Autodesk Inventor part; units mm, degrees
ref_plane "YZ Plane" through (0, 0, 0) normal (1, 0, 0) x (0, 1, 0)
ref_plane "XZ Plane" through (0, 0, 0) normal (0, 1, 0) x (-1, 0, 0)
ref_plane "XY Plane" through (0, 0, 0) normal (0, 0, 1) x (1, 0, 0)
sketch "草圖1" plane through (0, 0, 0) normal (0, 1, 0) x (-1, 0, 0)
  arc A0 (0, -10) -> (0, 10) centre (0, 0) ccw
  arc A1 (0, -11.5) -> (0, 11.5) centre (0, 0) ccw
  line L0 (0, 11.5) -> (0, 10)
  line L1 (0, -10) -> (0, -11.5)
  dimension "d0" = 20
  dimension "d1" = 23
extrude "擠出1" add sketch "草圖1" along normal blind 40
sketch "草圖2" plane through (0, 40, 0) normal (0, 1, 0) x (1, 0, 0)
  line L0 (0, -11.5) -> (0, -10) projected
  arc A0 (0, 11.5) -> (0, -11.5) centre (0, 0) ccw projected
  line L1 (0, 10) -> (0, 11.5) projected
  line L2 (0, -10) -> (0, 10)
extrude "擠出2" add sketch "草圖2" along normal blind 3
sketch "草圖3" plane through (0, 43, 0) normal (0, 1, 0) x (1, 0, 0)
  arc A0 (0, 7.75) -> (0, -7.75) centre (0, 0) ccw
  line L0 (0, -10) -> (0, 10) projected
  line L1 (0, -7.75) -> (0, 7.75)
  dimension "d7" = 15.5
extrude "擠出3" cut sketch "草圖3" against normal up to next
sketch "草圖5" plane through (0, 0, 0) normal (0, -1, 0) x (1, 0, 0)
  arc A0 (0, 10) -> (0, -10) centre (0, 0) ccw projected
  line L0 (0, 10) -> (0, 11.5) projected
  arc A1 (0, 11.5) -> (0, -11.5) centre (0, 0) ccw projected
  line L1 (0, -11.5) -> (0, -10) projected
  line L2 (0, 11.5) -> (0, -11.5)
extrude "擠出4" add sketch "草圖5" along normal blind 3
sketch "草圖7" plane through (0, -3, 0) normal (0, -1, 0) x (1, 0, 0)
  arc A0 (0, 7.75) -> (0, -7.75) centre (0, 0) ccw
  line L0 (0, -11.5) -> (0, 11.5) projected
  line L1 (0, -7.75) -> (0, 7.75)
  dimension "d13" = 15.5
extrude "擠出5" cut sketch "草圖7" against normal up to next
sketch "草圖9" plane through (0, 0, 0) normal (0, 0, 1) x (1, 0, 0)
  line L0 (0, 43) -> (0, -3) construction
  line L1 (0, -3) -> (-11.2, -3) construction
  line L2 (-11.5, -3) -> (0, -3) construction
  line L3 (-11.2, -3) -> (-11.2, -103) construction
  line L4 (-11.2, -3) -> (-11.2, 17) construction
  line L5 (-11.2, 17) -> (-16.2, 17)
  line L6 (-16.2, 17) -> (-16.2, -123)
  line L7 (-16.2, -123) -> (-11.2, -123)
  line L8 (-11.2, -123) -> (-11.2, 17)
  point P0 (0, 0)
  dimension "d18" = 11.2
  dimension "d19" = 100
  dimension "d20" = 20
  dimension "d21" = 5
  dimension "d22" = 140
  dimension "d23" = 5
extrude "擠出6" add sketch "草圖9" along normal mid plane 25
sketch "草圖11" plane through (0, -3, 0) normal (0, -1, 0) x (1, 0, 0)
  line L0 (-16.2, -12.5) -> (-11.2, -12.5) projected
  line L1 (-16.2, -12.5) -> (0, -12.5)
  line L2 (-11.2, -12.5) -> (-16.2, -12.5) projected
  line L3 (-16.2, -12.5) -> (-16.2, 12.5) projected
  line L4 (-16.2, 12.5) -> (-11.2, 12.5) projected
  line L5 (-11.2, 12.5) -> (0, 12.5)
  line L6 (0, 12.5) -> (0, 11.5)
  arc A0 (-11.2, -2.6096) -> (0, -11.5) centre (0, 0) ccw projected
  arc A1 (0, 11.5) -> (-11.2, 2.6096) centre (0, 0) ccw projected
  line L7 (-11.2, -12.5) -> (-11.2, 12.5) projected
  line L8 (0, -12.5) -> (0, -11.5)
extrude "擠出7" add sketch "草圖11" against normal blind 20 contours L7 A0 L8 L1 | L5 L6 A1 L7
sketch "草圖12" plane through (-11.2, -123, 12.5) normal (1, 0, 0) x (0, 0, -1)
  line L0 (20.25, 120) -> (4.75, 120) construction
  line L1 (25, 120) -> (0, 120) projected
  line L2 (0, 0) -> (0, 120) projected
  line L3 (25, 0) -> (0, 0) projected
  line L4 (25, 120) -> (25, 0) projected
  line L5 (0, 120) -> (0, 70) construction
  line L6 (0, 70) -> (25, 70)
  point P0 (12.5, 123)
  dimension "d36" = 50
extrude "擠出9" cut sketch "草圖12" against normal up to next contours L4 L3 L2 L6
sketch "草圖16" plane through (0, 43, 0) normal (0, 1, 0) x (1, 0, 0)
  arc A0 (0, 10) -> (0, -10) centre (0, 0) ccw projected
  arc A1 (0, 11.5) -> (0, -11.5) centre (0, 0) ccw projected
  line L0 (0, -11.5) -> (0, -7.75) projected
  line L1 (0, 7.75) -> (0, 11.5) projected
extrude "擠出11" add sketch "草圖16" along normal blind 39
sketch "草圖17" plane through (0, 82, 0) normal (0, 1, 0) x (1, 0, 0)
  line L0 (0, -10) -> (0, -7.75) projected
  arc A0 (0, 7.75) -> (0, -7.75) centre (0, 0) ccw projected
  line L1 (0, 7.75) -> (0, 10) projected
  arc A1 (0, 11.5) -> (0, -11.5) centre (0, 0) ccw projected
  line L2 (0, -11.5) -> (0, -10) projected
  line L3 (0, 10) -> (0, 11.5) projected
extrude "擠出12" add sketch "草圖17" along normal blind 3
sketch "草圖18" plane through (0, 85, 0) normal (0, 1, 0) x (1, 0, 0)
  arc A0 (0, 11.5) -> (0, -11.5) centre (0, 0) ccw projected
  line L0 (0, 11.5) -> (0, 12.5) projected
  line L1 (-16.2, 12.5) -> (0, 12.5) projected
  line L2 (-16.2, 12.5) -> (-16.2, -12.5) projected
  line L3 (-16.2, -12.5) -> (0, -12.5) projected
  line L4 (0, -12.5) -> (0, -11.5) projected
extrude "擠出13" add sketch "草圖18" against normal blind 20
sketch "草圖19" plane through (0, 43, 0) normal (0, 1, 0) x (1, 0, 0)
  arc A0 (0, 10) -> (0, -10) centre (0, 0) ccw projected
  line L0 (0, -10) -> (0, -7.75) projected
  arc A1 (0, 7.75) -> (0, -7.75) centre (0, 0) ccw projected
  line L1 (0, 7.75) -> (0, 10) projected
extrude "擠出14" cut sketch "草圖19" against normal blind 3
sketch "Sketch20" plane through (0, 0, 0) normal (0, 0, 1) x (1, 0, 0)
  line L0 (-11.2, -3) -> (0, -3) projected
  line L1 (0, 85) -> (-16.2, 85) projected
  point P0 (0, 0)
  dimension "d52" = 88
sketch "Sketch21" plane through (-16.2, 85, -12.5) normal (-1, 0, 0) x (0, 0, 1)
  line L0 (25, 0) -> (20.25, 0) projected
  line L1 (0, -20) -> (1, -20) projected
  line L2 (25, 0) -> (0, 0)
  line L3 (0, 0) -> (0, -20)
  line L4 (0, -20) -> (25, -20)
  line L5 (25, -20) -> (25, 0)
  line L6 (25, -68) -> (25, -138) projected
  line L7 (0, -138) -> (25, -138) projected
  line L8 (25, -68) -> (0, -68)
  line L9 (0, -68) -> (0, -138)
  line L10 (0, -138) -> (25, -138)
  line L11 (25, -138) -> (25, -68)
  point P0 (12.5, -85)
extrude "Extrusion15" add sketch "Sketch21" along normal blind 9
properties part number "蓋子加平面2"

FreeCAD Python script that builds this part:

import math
import FreeCAD as App
import Part
import Sketcher
from FreeCAD import Vector


def add_polygon(sketch, points):
    """Adds a closed chain of lines whose ends are joined by coincident constraints."""
    first, n = sketch.GeometryCount, len(points)
    for a, b in zip(points, points[1:] + points[:1]):
        sketch.addGeometry(Part.LineSegment(App.Vector(*a, 0), App.Vector(*b, 0)), False)
    for i in range(n):
        sketch.addConstraint(Sketcher.Constraint("Coincident", first + i, 2, first + (i + 1) % n, 1))

doc = App.newDocument("Part")
body = doc.addObject("PartDesign::Body", "Body")

# Sketch on XZ plane
sketch1 = doc.addObject("Sketcher::SketchObject", "Sketch")
body.addObject(sketch1)
sketch1.AttachmentSupport = (doc.XZ_Plane, [""])
sketch1.MapMode = "FlatFace"
sketch1.addGeometry(Part.ArcOfCircle(Part.Circle(Vector(0, 0, 0), Vector(0, 0, 1), 10), math.radians(90), math.radians(270)), False)
sketch1.addGeometry(Part.LineSegment(Vector(0, -10, 0), Vector(0, -11.5, 0)), False)
sketch1.addGeometry(Part.ArcOfCircle(Part.Circle(Vector(0, 0, 0), Vector(0, 0, 1), 11.5), math.radians(90), math.radians(270)), False)
sketch1.addGeometry(Part.LineSegment(Vector(0, 11.5, 0), Vector(0, 10, 0)), False)
sketch1.addConstraint(Sketcher.Constraint("Coincident", 0, 2, 1, 1))
sketch1.addConstraint(Sketcher.Constraint("Coincident", 1, 2, 2, 2))
sketch1.addConstraint(Sketcher.Constraint("Coincident", 2, 1, 3, 1))
sketch1.addConstraint(Sketcher.Constraint("Coincident", 3, 2, 0, 1))
sketch1.addConstraint(Sketcher.Constraint("Vertical", 1))
sketch1.addConstraint(Sketcher.Constraint("Vertical", 3))
sketch1.addConstraint(Sketcher.Constraint("Coincident", 0, 3, -1, 1))
sketch1.addConstraint(Sketcher.Constraint("Coincident", 2, 3, -1, 1))
sketch1.addConstraint(Sketcher.Constraint("PointOnObject", 0, 2, -2))
sketch1.addConstraint(Sketcher.Constraint("PointOnObject", 2, 1, -2))
sketch1.addConstraint(Sketcher.Constraint("Radius", 0, 10.0))
sketch1.addConstraint(Sketcher.Constraint("Radius", 2, 11.5))
pad1 = doc.addObject("PartDesign::Pad", "Pad")
body.addObject(pad1)
pad1.Profile = sketch1
pad1.Length = 40
pad1.Reversed = True

# Sketch on XZ plane
sketch2 = doc.addObject("Sketcher::SketchObject", "Sketch001")
body.addObject(sketch2)
sketch2.AttachmentSupport = (doc.XZ_Plane, [""])
sketch2.MapMode = "FlatFace"
sketch2.AttachmentOffset = App.Placement(Vector(0, 0, -40), App.Rotation())
sketch2.addGeometry(Part.ArcOfCircle(Part.Circle(Vector(0, 0, 0), Vector(0, 0, 1), 12), math.radians(90), math.radians(270)), False)
sketch2.addGeometry(Part.LineSegment(Vector(0, 12, 0), Vector(0, -12, 0)), False)
sketch2.addConstraint(Sketcher.Constraint("Coincident", 0, 1, 1, 1))
sketch2.addConstraint(Sketcher.Constraint("Coincident", 1, 2, 0, 2))
sketch2.addConstraint(Sketcher.Constraint("Vertical", 1))
sketch2.addConstraint(Sketcher.Constraint("Coincident", 0, 3, -1, 1))
sketch2.addConstraint(Sketcher.Constraint("PointOnObject", 0, 1, -2))
sketch2.addConstraint(Sketcher.Constraint("Radius", 0, 11.5))
pad2 = doc.addObject("PartDesign::Pad", "Pad001")
body.addObject(pad2)
pad2.Profile = sketch2
pad2.Length = 3
pad2.Reversed = True

# Sketch on XZ plane
sketch3 = doc.addObject("Sketcher::SketchObject", "Sketch002")
body.addObject(sketch3)
sketch3.AttachmentSupport = (doc.XZ_Plane, [""])
sketch3.MapMode = "FlatFace"
sketch3.AttachmentOffset = App.Placement(Vector(0, 0, -43), App.Rotation())
sketch3.addGeometry(Part.LineSegment(Vector(0, 8, 0), Vector(0, -8, 0)), False)
sketch3.addGeometry(Part.ArcOfCircle(Part.Circle(Vector(0, 0, 0), Vector(0, 0, 1), 8), math.radians(90), math.radians(270)), False)
sketch3.addConstraint(Sketcher.Constraint("Coincident", 0, 1, 1, 1))
sketch3.addConstraint(Sketcher.Constraint("Coincident", 1, 2, 0, 2))
sketch3.addConstraint(Sketcher.Constraint("Vertical", 0))
sketch3.addConstraint(Sketcher.Constraint("Coincident", 1, 3, -1, 1))
sketch3.addConstraint(Sketcher.Constraint("PointOnObject", 0, 1, -2))
sketch3.addConstraint(Sketcher.Constraint("Radius", 1, 7.75))
pocket1 = doc.addObject("PartDesign::Pocket", "Pocket")
body.addObject(pocket1)
pocket1.Profile = sketch3
pocket1.Type = "UpToFirst"
pocket1.Reversed = True

# Sketch on XZ plane
sketch4 = doc.addObject("Sketcher::SketchObject", "Sketch003")
body.addObject(sketch4)
sketch4.AttachmentSupport = (doc.XZ_Plane, [""])
sketch4.MapMode = "FlatFace"
sketch4.addGeometry(Part.ArcOfCircle(Part.Circle(Vector(0, 0, 0), Vector(0, 0, 1), 12), math.radians(90), math.radians(270)), False)
sketch4.addGeometry(Part.LineSegment(Vector(0, -12, 0), Vector(0, 12, 0)), False)
sketch4.addConstraint(Sketcher.Constraint("Coincident", 0, 1, 1, 2))
sketch4.addConstraint(Sketcher.Constraint("Coincident", 1, 1, 0, 2))
sketch4.addConstraint(Sketcher.Constraint("Vertical", 1))
sketch4.addConstraint(Sketcher.Constraint("Coincident", 0, 3, -1, 1))
sketch4.addConstraint(Sketcher.Constraint("PointOnObject", 0, 1, -2))
sketch4.addConstraint(Sketcher.Constraint("Radius", 0, 11.5))
pad3 = doc.addObject("PartDesign::Pad", "Pad002")
body.addObject(pad3)
pad3.Profile = sketch4
pad3.Length = 3

# Sketch on XZ plane
sketch5 = doc.addObject("Sketcher::SketchObject", "Sketch004")
body.addObject(sketch5)
sketch5.AttachmentSupport = (doc.XZ_Plane, [""])
sketch5.MapMode = "FlatFace"
sketch5.AttachmentOffset = App.Placement(Vector(0, 0, 3), App.Rotation())
sketch5.addGeometry(Part.LineSegment(Vector(0, -8, 0), Vector(0, 8, 0)), False)
sketch5.addGeometry(Part.ArcOfCircle(Part.Circle(Vector(0, 0, 0), Vector(0, 0, 1), 8), math.radians(90), math.radians(270)), False)
sketch5.addConstraint(Sketcher.Constraint("Coincident", 0, 1, 1, 2))
sketch5.addConstraint(Sketcher.Constraint("Coincident", 1, 1, 0, 2))
sketch5.addConstraint(Sketcher.Constraint("Vertical", 0))
sketch5.addConstraint(Sketcher.Constraint("Coincident", 1, 3, -1, 1))
sketch5.addConstraint(Sketcher.Constraint("PointOnObject", 0, 1, -2))
sketch5.addConstraint(Sketcher.Constraint("Radius", 1, 7.75))
pocket2 = doc.addObject("PartDesign::Pocket", "Pocket001")
body.addObject(pocket2)
pocket2.Profile = sketch5
pocket2.Type = "UpToFirst"

# Sketch on XY plane
sketch6 = doc.addObject("Sketcher::SketchObject", "Sketch005")
body.addObject(sketch6)
sketch6.AttachmentSupport = (doc.XY_Plane, [""])
sketch6.MapMode = "FlatFace"
add_polygon(sketch6, [(-11, -123), (-11, 17), (-16, 17), (-16, -123)])  # lines 0-3
sketch6.addConstraint(Sketcher.Constraint("Vertical", 0))
sketch6.addConstraint(Sketcher.Constraint("Horizontal", 1))
sketch6.addConstraint(Sketcher.Constraint("Vertical", 2))
sketch6.addConstraint(Sketcher.Constraint("Horizontal", 3))
sketch6.addConstraint(Sketcher.Constraint("DistanceX", 1, 2, 1, 1, 5.0))
sketch6.addConstraint(Sketcher.Constraint("DistanceY", 0, 1, 0, 2, 140.0))
sketch6.addConstraint(Sketcher.Constraint("DistanceX", 0, 2, -1, 1, 11.2))
sketch6.addConstraint(Sketcher.Constraint("DistanceY", -1, 1, 0, 2, 17.0))
pad4 = doc.addObject("PartDesign::Pad", "Pad003")
body.addObject(pad4)
pad4.Profile = sketch6
pad4.Length = 25
pad4.Midplane = True

# Sketch on XZ plane
sketch7 = doc.addObject("Sketcher::SketchObject", "Sketch006")
body.addObject(sketch7)
sketch7.AttachmentSupport = (doc.XZ_Plane, [""])
sketch7.MapMode = "FlatFace"
sketch7.AttachmentOffset = App.Placement(Vector(0, 0, 3), App.Rotation())
sketch7.addGeometry(Part.LineSegment(Vector(-11.2, -2.6, 0), Vector(-11.2, -12.5, 0)), False)
sketch7.addGeometry(Part.LineSegment(Vector(-11.2, -12.5, 0), Vector(0, -12.5, 0)), False)
sketch7.addGeometry(Part.LineSegment(Vector(0, -12.5, 0), Vector(0, -11.5, 0)), False)
sketch7.addGeometry(Part.ArcOfCircle(Part.Circle(Vector(0, 0, 0), Vector(0, 0, 1), 11.5), math.radians(-167), math.radians(-90)), False)
sketch7.addGeometry(Part.LineSegment(Vector(0, 12.5, 0), Vector(-11.2, 12.5, 0)), False)
sketch7.addGeometry(Part.LineSegment(Vector(-11.2, 12.5, 0), Vector(-11.2, 2.6, 0)), False)
sketch7.addGeometry(Part.ArcOfCircle(Part.Circle(Vector(0, 0, 0), Vector(0, 0, 1), 11.5), math.radians(90), math.radians(167)), False)
sketch7.addGeometry(Part.LineSegment(Vector(0, 11.5, 0), Vector(0, 12.5, 0)), False)
sketch7.addConstraint(Sketcher.Constraint("Coincident", 0, 2, 1, 1))
sketch7.addConstraint(Sketcher.Constraint("Coincident", 1, 2, 2, 1))
sketch7.addConstraint(Sketcher.Constraint("Coincident", 2, 2, 3, 2))
sketch7.addConstraint(Sketcher.Constraint("Coincident", 3, 1, 0, 1))
sketch7.addConstraint(Sketcher.Constraint("Coincident", 4, 2, 5, 1))
sketch7.addConstraint(Sketcher.Constraint("Coincident", 5, 2, 6, 2))
sketch7.addConstraint(Sketcher.Constraint("Coincident", 6, 1, 7, 1))
sketch7.addConstraint(Sketcher.Constraint("Coincident", 7, 2, 4, 1))
sketch7.addConstraint(Sketcher.Constraint("Vertical", 0))
sketch7.addConstraint(Sketcher.Constraint("Horizontal", 1))
sketch7.addConstraint(Sketcher.Constraint("Vertical", 2))
sketch7.addConstraint(Sketcher.Constraint("Horizontal", 4))
sketch7.addConstraint(Sketcher.Constraint("Vertical", 5))
sketch7.addConstraint(Sketcher.Constraint("Vertical", 7))
sketch7.addConstraint(Sketcher.Constraint("Coincident", 3, 3, -1, 1))
sketch7.addConstraint(Sketcher.Constraint("Coincident", 6, 3, -1, 1))
sketch7.addConstraint(Sketcher.Constraint("Equal", 3, 6))
sketch7.addConstraint(Sketcher.Constraint("Symmetric", 1, 2, 7, 2, -1, 1))
sketch7.addConstraint(Sketcher.Constraint("PointOnObject", 1, 2, -2))
sketch7.addConstraint(Sketcher.Constraint("Vertical", 3, 1, 4, 2))
sketch7.addConstraint(Sketcher.Constraint("Radius", 3, 11.5))
sketch7.addConstraint(Sketcher.Constraint("DistanceY", 2, 1, 2, 2, 1.0))
sketch7.addConstraint(Sketcher.Constraint("DistanceX", 1, 1, 1, 2, 11.2))
pad5 = doc.addObject("PartDesign::Pad", "Pad004")
body.addObject(pad5)
pad5.Profile = sketch7
pad5.Length = 20
pad5.Reversed = True

# Sketch on YZ plane
sketch8 = doc.addObject("Sketcher::SketchObject", "Sketch007")
body.addObject(sketch8)
sketch8.AttachmentSupport = (doc.YZ_Plane, [""])
sketch8.MapMode = "FlatFace"
sketch8.AttachmentOffset = App.Placement(Vector(0, 0, -11.2), App.Rotation())
add_polygon(sketch8, [(-123, -12), (-53, -12), (-53, 12), (-123, 12)])  # lines 0-3
sketch8.addConstraint(Sketcher.Constraint("Horizontal", 0))
sketch8.addConstraint(Sketcher.Constraint("Vertical", 1))
sketch8.addConstraint(Sketcher.Constraint("Horizontal", 2))
sketch8.addConstraint(Sketcher.Constraint("Vertical", 3))
sketch8.addConstraint(Sketcher.Constraint("DistanceX", 0, 1, 0, 2, 70.0))
sketch8.addConstraint(Sketcher.Constraint("DistanceY", 1, 1, 1, 2, 25.0))
sketch8.addConstraint(Sketcher.Constraint("DistanceX", 0, 2, -1, 1, 53.0))
sketch8.addConstraint(Sketcher.Constraint("DistanceY", 0, 2, -1, 1, 12.5))
pocket3 = doc.addObject("PartDesign::Pocket", "Pocket002")
body.addObject(pocket3)
pocket3.Profile = sketch8
pocket3.Type = "UpToFirst"

# Sketch on XZ plane
sketch9 = doc.addObject("Sketcher::SketchObject", "Sketch008")
body.addObject(sketch9)
sketch9.AttachmentSupport = (doc.XZ_Plane, [""])
sketch9.MapMode = "FlatFace"
sketch9.AttachmentOffset = App.Placement(Vector(0, 0, -43), App.Rotation())
sketch9.addGeometry(Part.ArcOfCircle(Part.Circle(Vector(0, 0, 0), Vector(0, 0, 1), 10), math.radians(90), math.radians(270)), False)
sketch9.addGeometry(Part.LineSegment(Vector(0, -10, 0), Vector(0, -11.5, 0)), False)
sketch9.addGeometry(Part.ArcOfCircle(Part.Circle(Vector(0, 0, 0), Vector(0, 0, 1), 11.5), math.radians(90), math.radians(270)), False)
sketch9.addGeometry(Part.LineSegment(Vector(0, 11.5, 0), Vector(0, 10, 0)), False)
sketch9.addConstraint(Sketcher.Constraint("Coincident", 0, 2, 1, 1))
sketch9.addConstraint(Sketcher.Constraint("Coincident", 1, 2, 2, 2))
sketch9.addConstraint(Sketcher.Constraint("Coincident", 2, 1, 3, 1))
sketch9.addConstraint(Sketcher.Constraint("Coincident", 3, 2, 0, 1))
sketch9.addConstraint(Sketcher.Constraint("Vertical", 1))
sketch9.addConstraint(Sketcher.Constraint("Vertical", 3))
sketch9.addConstraint(Sketcher.Constraint("Coincident", 0, 3, -1, 1))
sketch9.addConstraint(Sketcher.Constraint("Coincident", 2, 3, -1, 1))
sketch9.addConstraint(Sketcher.Constraint("PointOnObject", 0, 2, -2))
sketch9.addConstraint(Sketcher.Constraint("PointOnObject", 2, 1, -2))
sketch9.addConstraint(Sketcher.Constraint("Radius", 0, 10.0))
sketch9.addConstraint(Sketcher.Constraint("Radius", 2, 11.5))
pad6 = doc.addObject("PartDesign::Pad", "Pad005")
body.addObject(pad6)
pad6.Profile = sketch9
pad6.Length = 39
pad6.Reversed = True

# Sketch on XZ plane
sketch10 = doc.addObject("Sketcher::SketchObject", "Sketch009")
body.addObject(sketch10)
sketch10.AttachmentSupport = (doc.XZ_Plane, [""])
sketch10.MapMode = "FlatFace"
sketch10.AttachmentOffset = App.Placement(Vector(0, 0, -82), App.Rotation())
sketch10.addGeometry(Part.LineSegment(Vector(0, 11.5, 0), Vector(0, 7.8, 0)), False)
sketch10.addGeometry(Part.ArcOfCircle(Part.Circle(Vector(0, 0, 0), Vector(0, 0, 1), 7.8), math.radians(90), math.radians(270)), False)
sketch10.addGeometry(Part.LineSegment(Vector(0, -7.8, 0), Vector(0, -11.5, 0)), False)
sketch10.addGeometry(Part.ArcOfCircle(Part.Circle(Vector(0, 0, 0), Vector(0, 0, 1), 11.5), math.radians(90), math.radians(270)), False)
sketch10.addConstraint(Sketcher.Constraint("Coincident", 0, 2, 1, 1))
sketch10.addConstraint(Sketcher.Constraint("Coincident", 1, 2, 2, 1))
sketch10.addConstraint(Sketcher.Constraint("Coincident", 2, 2, 3, 2))
sketch10.addConstraint(Sketcher.Constraint("Coincident", 3, 1, 0, 1))
sketch10.addConstraint(Sketcher.Constraint("Vertical", 0))
sketch10.addConstraint(Sketcher.Constraint("Vertical", 2))
sketch10.addConstraint(Sketcher.Constraint("Coincident", 1, 3, -1, 1))
sketch10.addConstraint(Sketcher.Constraint("Coincident", 3, 3, -1, 1))
sketch10.addConstraint(Sketcher.Constraint("PointOnObject", 0, 2, -2))
sketch10.addConstraint(Sketcher.Constraint("PointOnObject", 1, 2, -2))
sketch10.addConstraint(Sketcher.Constraint("Radius", 3, 11.5))
sketch10.addConstraint(Sketcher.Constraint("Radius", 1, 7.75))
pad7 = doc.addObject("PartDesign::Pad", "Pad006")
body.addObject(pad7)
pad7.Profile = sketch10
pad7.Length = 3
pad7.Reversed = True

# Sketch on XZ plane
sketch11 = doc.addObject("Sketcher::SketchObject", "Sketch010")
body.addObject(sketch11)
sketch11.AttachmentSupport = (doc.XZ_Plane, [""])
sketch11.MapMode = "FlatFace"
sketch11.AttachmentOffset = App.Placement(Vector(0, 0, -85), App.Rotation())
sketch11.addGeometry(Part.ArcOfCircle(Part.Circle(Vector(0, 0, 0), Vector(0, 0, 1), 11.5), math.radians(90), math.radians(270)), False)
sketch11.addGeometry(Part.LineSegment(Vector(0, -11.5, 0), Vector(0, -12.5, 0)), False)
sketch11.addGeometry(Part.LineSegment(Vector(0, -12.5, 0), Vector(-16.2, -12.5, 0)), False)
sketch11.addGeometry(Part.LineSegment(Vector(-16.2, -12.5, 0), Vector(-16.2, 12.5, 0)), False)
sketch11.addGeometry(Part.LineSegment(Vector(-16.2, 12.5, 0), Vector(0, 12.5, 0)), False)
sketch11.addGeometry(Part.LineSegment(Vector(0, 12.5, 0), Vector(0, 11.5, 0)), False)
sketch11.addConstraint(Sketcher.Constraint("Coincident", 0, 2, 1, 1))
sketch11.addConstraint(Sketcher.Constraint("Coincident", 1, 2, 2, 1))
sketch11.addConstraint(Sketcher.Constraint("Coincident", 2, 2, 3, 1))
sketch11.addConstraint(Sketcher.Constraint("Coincident", 3, 2, 4, 1))
sketch11.addConstraint(Sketcher.Constraint("Coincident", 4, 2, 5, 1))
sketch11.addConstraint(Sketcher.Constraint("Coincident", 5, 2, 0, 1))
sketch11.addConstraint(Sketcher.Constraint("Vertical", 1))
sketch11.addConstraint(Sketcher.Constraint("Horizontal", 2))
sketch11.addConstraint(Sketcher.Constraint("Vertical", 3))
sketch11.addConstraint(Sketcher.Constraint("Horizontal", 4))
sketch11.addConstraint(Sketcher.Constraint("Vertical", 5))
sketch11.addConstraint(Sketcher.Constraint("Coincident", 0, 3, -1, 1))
sketch11.addConstraint(Sketcher.Constraint("Symmetric", 1, 2, 4, 2, -1, 1))
sketch11.addConstraint(Sketcher.Constraint("PointOnObject", 0, 2, -2))
sketch11.addConstraint(Sketcher.Constraint("Radius", 0, 11.5))
sketch11.addConstraint(Sketcher.Constraint("DistanceY", 1, 2, 1, 1, 1.0))
sketch11.addConstraint(Sketcher.Constraint("DistanceX", 2, 2, 2, 1, 16.2))
pad8 = doc.addObject("PartDesign::Pad", "Pad007")
body.addObject(pad8)
pad8.Profile = sketch11
pad8.Length = 20

# Sketch on XZ plane
sketch12 = doc.addObject("Sketcher::SketchObject", "Sketch011")
body.addObject(sketch12)
sketch12.AttachmentSupport = (doc.XZ_Plane, [""])
sketch12.MapMode = "FlatFace"
sketch12.AttachmentOffset = App.Placement(Vector(0, 0, -43), App.Rotation())
sketch12.addGeometry(Part.LineSegment(Vector(0, -7.8, 0), Vector(0, -10, 0)), False)
sketch12.addGeometry(Part.ArcOfCircle(Part.Circle(Vector(0, 0, 0), Vector(0, 0, 1), 10), math.radians(90), math.radians(270)), False)
sketch12.addGeometry(Part.LineSegment(Vector(0, 10, 0), Vector(0, 7.8, 0)), False)
sketch12.addGeometry(Part.ArcOfCircle(Part.Circle(Vector(0, 0, 0), Vector(0, 0, 1), 7.8), math.radians(90), math.radians(270)), False)
sketch12.addConstraint(Sketcher.Constraint("Coincident", 0, 2, 1, 2))
sketch12.addConstraint(Sketcher.Constraint("Coincident", 1, 1, 2, 1))
sketch12.addConstraint(Sketcher.Constraint("Coincident", 2, 2, 3, 1))
sketch12.addConstraint(Sketcher.Constraint("Coincident", 3, 2, 0, 1))
sketch12.addConstraint(Sketcher.Constraint("Vertical", 0))
sketch12.addConstraint(Sketcher.Constraint("Vertical", 2))
sketch12.addConstraint(Sketcher.Constraint("Coincident", 1, 3, -1, 1))
sketch12.addConstraint(Sketcher.Constraint("Coincident", 3, 3, -1, 1))
sketch12.addConstraint(Sketcher.Constraint("PointOnObject", 0, 2, -2))
sketch12.addConstraint(Sketcher.Constraint("PointOnObject", 1, 1, -2))
sketch12.addConstraint(Sketcher.Constraint("Radius", 1, 10.0))
sketch12.addConstraint(Sketcher.Constraint("Radius", 3, 7.75))
pocket4 = doc.addObject("PartDesign::Pocket", "Pocket003")
body.addObject(pocket4)
pocket4.Profile = sketch12
pocket4.Length = 3
pocket4.Reversed = True

# Sketch on YZ plane
sketch13 = doc.addObject("Sketcher::SketchObject", "Sketch012")
body.addObject(sketch13)
sketch13.AttachmentSupport = (doc.YZ_Plane, [""])
sketch13.MapMode = "FlatFace"
sketch13.AttachmentOffset = App.Placement(Vector(0, 0, -16.2), App.Rotation())
add_polygon(sketch13, [(65, 12), (85, 12), (85, -12), (65, -12)])  # lines 0-3
add_polygon(sketch13, [(-53, 12), (17, 12), (17, -12), (-53, -12)])  # lines 4-7
sketch13.addConstraint(Sketcher.Constraint("Horizontal", 0))
sketch13.addConstraint(Sketcher.Constraint("Vertical", 1))
sketch13.addConstraint(Sketcher.Constraint("Horizontal", 2))
sketch13.addConstraint(Sketcher.Constraint("Vertical", 3))
sketch13.addConstraint(Sketcher.Constraint("Horizontal", 4))
sketch13.addConstraint(Sketcher.Constraint("Vertical", 5))
sketch13.addConstraint(Sketcher.Constraint("Horizontal", 6))
sketch13.addConstraint(Sketcher.Constraint("Vertical", 7))
sketch13.addConstraint(Sketcher.Constraint("Horizontal", 3, 2, 4, 2))
sketch13.addConstraint(Sketcher.Constraint("Horizontal", 2, 2, 5, 2))
sketch13.addConstraint(Sketcher.Constraint("DistanceX", 0, 1, 0, 2, 20.0))
sketch13.addConstraint(Sketcher.Constraint("DistanceX", 4, 1, 4, 2, 70.0))
sketch13.addConstraint(Sketcher.Constraint("DistanceY", 1, 2, 1, 1, 25.0))
sketch13.addConstraint(Sketcher.Constraint("DistanceX", -1, 1, 0, 2, 85.0))
sketch13.addConstraint(Sketcher.Constraint("DistanceX", -1, 1, 4, 2, 17.0))
sketch13.addConstraint(Sketcher.Constraint("DistanceY", -1, 1, 0, 2, 12.5))
pad9 = doc.addObject("PartDesign::Pad", "Pad008")
body.addObject(pad9)
pad9.Profile = sketch13
pad9.Length = 9
pad9.Reversed = True

doc.recompute()
